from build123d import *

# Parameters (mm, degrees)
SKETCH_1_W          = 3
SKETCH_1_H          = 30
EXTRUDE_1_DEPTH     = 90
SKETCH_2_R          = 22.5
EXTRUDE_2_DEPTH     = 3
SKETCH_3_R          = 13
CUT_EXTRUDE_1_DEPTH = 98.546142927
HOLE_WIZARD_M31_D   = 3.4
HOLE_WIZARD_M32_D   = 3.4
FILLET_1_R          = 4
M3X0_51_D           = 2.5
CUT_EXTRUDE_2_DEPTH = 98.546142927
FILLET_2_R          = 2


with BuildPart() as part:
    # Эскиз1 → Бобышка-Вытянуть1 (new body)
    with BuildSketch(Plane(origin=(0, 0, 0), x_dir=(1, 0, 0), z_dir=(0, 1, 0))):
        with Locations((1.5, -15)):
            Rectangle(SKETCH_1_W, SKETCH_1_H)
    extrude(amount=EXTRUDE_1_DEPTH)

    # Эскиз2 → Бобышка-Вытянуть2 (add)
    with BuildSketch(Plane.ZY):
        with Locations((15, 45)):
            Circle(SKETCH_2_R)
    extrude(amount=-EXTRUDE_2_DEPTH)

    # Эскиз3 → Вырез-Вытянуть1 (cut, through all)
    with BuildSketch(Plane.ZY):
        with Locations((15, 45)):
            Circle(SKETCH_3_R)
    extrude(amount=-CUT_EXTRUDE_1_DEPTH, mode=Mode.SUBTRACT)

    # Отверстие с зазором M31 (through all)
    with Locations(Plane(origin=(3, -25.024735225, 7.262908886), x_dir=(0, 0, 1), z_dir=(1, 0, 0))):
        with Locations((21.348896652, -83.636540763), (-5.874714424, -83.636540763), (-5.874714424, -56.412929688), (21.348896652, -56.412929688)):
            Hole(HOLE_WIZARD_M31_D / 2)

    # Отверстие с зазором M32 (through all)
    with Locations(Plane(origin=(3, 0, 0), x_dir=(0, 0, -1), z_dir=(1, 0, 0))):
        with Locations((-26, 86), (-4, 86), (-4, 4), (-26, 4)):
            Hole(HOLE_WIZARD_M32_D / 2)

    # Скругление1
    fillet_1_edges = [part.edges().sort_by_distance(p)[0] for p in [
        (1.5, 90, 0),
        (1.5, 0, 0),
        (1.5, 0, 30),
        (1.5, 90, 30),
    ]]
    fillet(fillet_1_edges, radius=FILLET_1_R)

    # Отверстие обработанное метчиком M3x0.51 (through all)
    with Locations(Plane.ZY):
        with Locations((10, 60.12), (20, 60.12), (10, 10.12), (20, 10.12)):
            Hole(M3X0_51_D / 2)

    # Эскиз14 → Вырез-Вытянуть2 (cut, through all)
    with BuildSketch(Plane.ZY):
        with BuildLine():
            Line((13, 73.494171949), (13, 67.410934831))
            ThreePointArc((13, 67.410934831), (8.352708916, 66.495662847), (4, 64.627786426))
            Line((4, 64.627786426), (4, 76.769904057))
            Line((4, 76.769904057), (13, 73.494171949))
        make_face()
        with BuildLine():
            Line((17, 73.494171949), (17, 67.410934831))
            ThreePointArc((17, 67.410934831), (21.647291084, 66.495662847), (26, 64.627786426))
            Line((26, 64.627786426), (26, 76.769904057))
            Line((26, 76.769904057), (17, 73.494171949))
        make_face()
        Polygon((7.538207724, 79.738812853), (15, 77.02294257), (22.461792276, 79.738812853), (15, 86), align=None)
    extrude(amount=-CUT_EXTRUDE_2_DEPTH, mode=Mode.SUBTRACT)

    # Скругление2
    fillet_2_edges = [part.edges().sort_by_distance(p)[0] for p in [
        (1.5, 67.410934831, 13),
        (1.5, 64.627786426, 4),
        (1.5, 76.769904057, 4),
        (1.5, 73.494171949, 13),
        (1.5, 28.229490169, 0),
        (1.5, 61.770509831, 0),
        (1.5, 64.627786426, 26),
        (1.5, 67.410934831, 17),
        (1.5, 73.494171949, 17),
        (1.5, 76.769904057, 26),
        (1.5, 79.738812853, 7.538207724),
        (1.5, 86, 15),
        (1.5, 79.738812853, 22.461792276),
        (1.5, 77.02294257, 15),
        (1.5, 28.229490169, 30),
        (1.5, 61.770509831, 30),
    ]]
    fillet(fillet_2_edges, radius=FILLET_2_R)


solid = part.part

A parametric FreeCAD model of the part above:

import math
import FreeCAD as App
import Part
import Sketcher
Q = App.Units.Quantity


def edges_at(feature, points):
    """Names of the edges that pass closest to the given points."""
    edges = feature.Shape.Edges
    near = lambda p: min(range(len(edges)), key=lambda i: edges[i].distToShape(Part.Vertex(*p))[0])
    return sorted({f"Edge{near(p) + 1}" for p in points})


def add_polygon(sketch, points):
    """Adds a closed chain of lines whose ends are joined by coincident constraints."""
    first, n = sketch.GeometryCount, len(points)
    for a, b in zip(points, points[1:] + points[:1]):
        sketch.addGeometry(Part.LineSegment(App.Vector(*a, 0), App.Vector(*b, 0)), False)
    for i in range(n):
        sketch.addConstraint(Sketcher.Constraint("Coincident", first + i, 2, first + (i + 1) % n, 1))

doc = App.newDocument("Part")
body = doc.addObject("PartDesign::Body", "Body")

# Sketch on XZ plane
sketch1 = body.newObject("Sketcher::SketchObject", "Sketch")
sketch1.AttachmentSupport = (doc.getObject("XZ_Plane"), [""])
sketch1.MapMode = "FlatFace"
add_polygon(sketch1, [(0, 0), (0, 30), (3, 30), (3, 0)])  # lines 0-3
sketch1.addConstraint(Sketcher.Constraint("Vertical", 0))
sketch1.addConstraint(Sketcher.Constraint("Horizontal", 1))
sketch1.addConstraint(Sketcher.Constraint("Vertical", 2))
sketch1.addConstraint(Sketcher.Constraint("Horizontal", 3))
sketch1.addConstraint(Sketcher.Constraint("Coincident", 3, 2, -1, 1))
sketch1.addConstraint(Sketcher.Constraint("DistanceX", 1, 1, 1, 2, Q("3 mm")))
sketch1.addConstraint(Sketcher.Constraint("DistanceY", 0, 1, 0, 2, Q("30 mm")))
pad1 = body.newObject("PartDesign::Pad", "Pad")
pad1.Profile = sketch1
pad1.Length = 90
pad1.Reversed = True

# Sketch on YZ plane
sketch2 = body.newObject("Sketcher::SketchObject", "Sketch001")
sketch2.AttachmentSupport = (doc.getObject("YZ_Plane"), [""])
sketch2.MapMode = "FlatFace"
sketch2.addGeometry(Part.Circle(App.Vector(45, 15, 0), App.Vector(0, 0, 1), 22.5), False)
sketch2.addConstraint(Sketcher.Constraint("Diameter", 0, Q("45 mm")))
sketch2.addConstraint(Sketcher.Constraint("DistanceX", -1, 1, 0, 3, Q("45 mm")))
sketch2.addConstraint(Sketcher.Constraint("DistanceY", -1, 1, 0, 3, Q("15 mm")))
pad2 = body.newObject("PartDesign::Pad", "Pad001")
pad2.Profile = sketch2
pad2.Length = 3

# Sketch on YZ plane
sketch3 = body.newObject("Sketcher::SketchObject", "Sketch002")
sketch3.AttachmentSupport = (doc.getObject("YZ_Plane"), [""])
sketch3.MapMode = "FlatFace"
sketch3.addGeometry(Part.Circle(App.Vector(45, 15, 0), App.Vector(0, 0, 1), 13), False)
sketch3.addConstraint(Sketcher.Constraint("Diameter", 0, Q("26 mm")))
sketch3.addConstraint(Sketcher.Constraint("DistanceX", -1, 1, 0, 3, Q("45 mm")))
sketch3.addConstraint(Sketcher.Constraint("DistanceY", -1, 1, 0, 3, Q("15 mm")))
pocket1 = body.newObject("PartDesign::Pocket", "Pocket")
pocket1.Profile = sketch3
pocket1.Type = "ThroughAll"
pocket1.Reversed = True

# Sketch on YZ plane
sketch4 = body.newObject("Sketcher::SketchObject", "Sketch003")
sketch4.AttachmentSupport = (doc.getObject("YZ_Plane"), [""])
sketch4.MapMode = "FlatFace"
sketch4.AttachmentOffset = App.Placement(App.Vector(0, 0, 3), App.Rotation())
sketch4.addGeometry(Part.Circle(App.Vector(58.611806, 28.611806, 0), App.Vector(0, 0, 1), 1.7), False)
sketch4.addGeometry(Part.Circle(App.Vector(58.611806, 1.388194, 0), App.Vector(0, 0, 1), 1.7), False)
sketch4.addGeometry(Part.Circle(App.Vector(31.388194, 1.388194, 0), App.Vector(0, 0, 1), 1.7), False)
sketch4.addGeometry(Part.Circle(App.Vector(31.388194, 28.611806, 0), App.Vector(0, 0, 1), 1.7), False)
sketch4.addConstraint(Sketcher.Constraint("Equal", 0, 1))
sketch4.addConstraint(Sketcher.Constraint("Equal", 1, 2))
sketch4.addConstraint(Sketcher.Constraint("Equal", 2, 3))
sketch4.addConstraint(Sketcher.Constraint("Horizontal", 1, 3, 2, 3))
sketch4.addConstraint(Sketcher.Constraint("Horizontal", 0, 3, 3, 3))
sketch4.addConstraint(Sketcher.Constraint("Vertical", 0, 3, 1, 3))
sketch4.addConstraint(Sketcher.Constraint("Vertical", 2, 3, 3, 3))
sketch4.addConstraint(Sketcher.Constraint("Diameter", 0, Q("3.4 mm")))
sketch4.addConstraint(Sketcher.Constraint("DistanceY", 1, 3, 0, 3, Q("27.223611 mm")))
sketch4.addConstraint(Sketcher.Constraint("DistanceX", 2, 3, 1, 3, Q("27.223611 mm")))
sketch4.addConstraint(Sketcher.Constraint("DistanceX", -1, 1, 0, 3, Q("58.611806 mm")))
sketch4.addConstraint(Sketcher.Constraint("DistanceY", -1, 1, 0, 3, Q("28.611806 mm")))
doc.recompute()
hole = body.newObject("PartDesign::Hole", "Hole")
hole.Profile = sketch4
hole.ThreadType = "None"
hole.Diameter = 3.4
hole.DepthType = "ThroughAll"

# Sketch on YZ plane
sketch5 = body.newObject("Sketcher::SketchObject", "Sketch004")
sketch5.AttachmentSupport = (doc.getObject("YZ_Plane"), [""])
sketch5.MapMode = "FlatFace"
sketch5.AttachmentOffset = App.Placement(App.Vector(0, 0, 3), App.Rotation())
sketch5.addGeometry(Part.Circle(App.Vector(86, 26, 0), App.Vector(0, 0, 1), 1.7), False)
sketch5.addGeometry(Part.Circle(App.Vector(86, 4, 0), App.Vector(0, 0, 1), 1.7), False)
sketch5.addGeometry(Part.Circle(App.Vector(4, 4, 0), App.Vector(0, 0, 1), 1.7), False)
sketch5.addGeometry(Part.Circle(App.Vector(4, 26, 0), App.Vector(0, 0, 1), 1.7), False)
sketch5.addConstraint(Sketcher.Constraint("Equal", 0, 1))
sketch5.addConstraint(Sketcher.Constraint("Equal", 1, 2))
sketch5.addConstraint(Sketcher.Constraint("Equal", 2, 3))
sketch5.addConstraint(Sketcher.Constraint("Horizontal", 1, 3, 2, 3))
sketch5.addConstraint(Sketcher.Constraint("Horizontal", 0, 3, 3, 3))
sketch5.addConstraint(Sketcher.Constraint("Vertical", 0, 3, 1, 3))
sketch5.addConstraint(Sketcher.Constraint("Vertical", 2, 3, 3, 3))
sketch5.addConstraint(Sketcher.Constraint("Diameter", 0, Q("3.4 mm")))
sketch5.addConstraint(Sketcher.Constraint("DistanceX", -1, 1, 0, 3, Q("86 mm")))
sketch5.addConstraint(Sketcher.Constraint("DistanceY", -1, 1, 0, 3, Q("26 mm")))
sketch5.addConstraint(Sketcher.Constraint("DistanceY", -1, 1, 1, 3, Q("4 mm")))
sketch5.addConstraint(Sketcher.Constraint("DistanceX", -1, 1, 2, 3, Q("4 mm")))
doc.recompute()
hole2 = body.newObject("PartDesign::Hole", "Hole001")
hole2.Profile = sketch5
hole2.ThreadType = "None"
hole2.Diameter = 3.4
hole2.DepthType = "ThroughAll"
doc.recompute()

fillet = body.newObject("PartDesign::Fillet", "Fillet")
fillet.Base = (hole2, edges_at(hole2, [
    (1.5, 90, 0),
    (1.5, 0, 0),
    (1.5, 0, 30),
    (1.5, 90, 30),
]))
fillet.Radius = 4

# Sketch on YZ plane
sketch6 = body.newObject("Sketcher::SketchObject", "Sketch005")
sketch6.AttachmentSupport = (doc.getObject("YZ_Plane"), [""])
sketch6.MapMode = "FlatFace"
sketch6.addGeometry(Part.Circle(App.Vector(60.12, 10, 0), App.Vector(0, 0, 1), 1.25), False)
sketch6.addGeometry(Part.Circle(App.Vector(60.12, 20, 0), App.Vector(0, 0, 1), 1.25), False)
sketch6.addGeometry(Part.Circle(App.Vector(10.12, 10, 0), App.Vector(0, 0, 1), 1.25), False)
sketch6.addGeometry(Part.Circle(App.Vector(10.12, 20, 0), App.Vector(0, 0, 1), 1.25), False)
sketch6.addConstraint(Sketcher.Constraint("Equal", 0, 1))
sketch6.addConstraint(Sketcher.Constraint("Equal", 1, 2))
sketch6.addConstraint(Sketcher.Constraint("Equal", 2, 3))
sketch6.addConstraint(Sketcher.Constraint("Horizontal", 0, 3, 2, 3))
sketch6.addConstraint(Sketcher.Constraint("Horizontal", 1, 3, 3, 3))
sketch6.addConstraint(Sketcher.Constraint("Vertical", 0, 3, 1, 3))
sketch6.addConstraint(Sketcher.Constraint("Vertical", 2, 3, 3, 3))
sketch6.addConstraint(Sketcher.Constraint("Diameter", 0, Q("2.5 mm")))
sketch6.addConstraint(Sketcher.Constraint("DistanceY", -1, 1, 0, 3, Q("10 mm")))
sketch6.addConstraint(Sketcher.Constraint("DistanceY", -1, 1, 1, 3, Q("20 mm")))
sketch6.addConstraint(Sketcher.Constraint("DistanceX", 2, 3, 0, 3, Q("50 mm")))
sketch6.addConstraint(Sketcher.Constraint("DistanceX", -1, 1, 0, 3, Q("60.12 mm")))
doc.recompute()
hole3 = body.newObject("PartDesign::Hole", "Hole002")
hole3.Profile = sketch6
hole3.ThreadType = "None"
hole3.Diameter = 2.5
hole3.DepthType = "ThroughAll"
hole3.Reversed = True

# Sketch on YZ plane
sketch7 = body.newObject("Sketcher::SketchObject", "Sketch006")
sketch7.AttachmentSupport = (doc.getObject("YZ_Plane"), [""])
sketch7.MapMode = "FlatFace"
sketch7.addGeometry(Part.LineSegment(App.Vector(67.410935, 13, 0), App.Vector(73.494172, 13, 0)), False)  # 0
sketch7.addGeometry(Part.LineSegment(App.Vector(73.494172, 13, 0), App.Vector(76.769904, 4, 0)), False)  # 1
sketch7.addGeometry(Part.LineSegment(App.Vector(76.769904, 4, 0), App.Vector(64.627786, 4, 0)), False)  # 2
sketch7.addGeometry(Part.ArcOfCircle(Part.Circle(App.Vector(45, 15, 0), App.Vector(0, 0, 1), 22.5), math.radians(-29.267578), math.radians(-5.099689)), False)  # 3
sketch7.addGeometry(Part.LineSegment(App.Vector(73.494172, 17, 0), App.Vector(67.410935, 17, 0)), False)  # 4
sketch7.addGeometry(Part.ArcOfCircle(Part.Circle(App.Vector(45, 15, 0), App.Vector(0, 0, 1), 22.5), math.radians(5.099689), math.radians(29.267578)), False)  # 5
sketch7.addGeometry(Part.LineSegment(App.Vector(64.627786, 26, 0), App.Vector(76.769904, 26, 0)), False)  # 6
sketch7.addGeometry(Part.LineSegment(App.Vector(76.769904, 26, 0), App.Vector(73.494172, 17, 0)), False)  # 7
add_polygon(sketch7, [(79.738813, 7.538208), (77.022943, 15), (79.738813, 22.461792), (86, 15)])  # lines 8-11
sketch7.addConstraint(Sketcher.Constraint("Coincident", 0, 2, 1, 1))
sketch7.addConstraint(Sketcher.Constraint("Coincident", 1, 2, 2, 1))
sketch7.addConstraint(Sketcher.Constraint("Coincident", 2, 2, 3, 1))
sketch7.addConstraint(Sketcher.Constraint("Coincident", 3, 2, 0, 1))
sketch7.addConstraint(Sketcher.Constraint("Coincident", 4, 2, 5, 1))
sketch7.addConstraint(Sketcher.Constraint("Coincident", 5, 2, 6, 1))
sketch7.addConstraint(Sketcher.Constraint("Coincident", 6, 2, 7, 1))
sketch7.addConstraint(Sketcher.Constraint("Coincident", 7, 2, 4, 1))
sketch7.addConstraint(Sketcher.Constraint("Horizontal", 0))
sketch7.addConstraint(Sketcher.Constraint("Horizontal", 2))
sketch7.addConstraint(Sketcher.Constraint("Horizontal", 4))
sketch7.addConstraint(Sketcher.Constraint("Horizontal", 6))
sketch7.addConstraint(Sketcher.Constraint("Coincident", 5, 3, 3, 3))
sketch7.addConstraint(Sketcher.Constraint("Equal", 3, 5))
sketch7.addConstraint(Sketcher.Constraint("Parallel", 1, 8))
sketch7.addConstraint(Sketcher.Constraint("Parallel", 7, 9))
sketch7.addConstraint(Sketcher.Constraint("Horizontal", 5, 3, 8, 2))
sketch7.addConstraint(Sketcher.Constraint("Horizontal", 8, 2, 10, 2))
sketch7.addConstraint(Sketcher.Constraint("Vertical", 3, 2, 4, 2))
sketch7.addConstraint(Sketcher.Constraint("Vertical", 2, 2, 5, 2))
sketch7.addConstraint(Sketcher.Constraint("Vertical", 1, 2, 6, 2))
sketch7.addConstraint(Sketcher.Constraint("Vertical", 0, 2, 7, 2))
sketch7.addConstraint(Sketcher.Constraint("Vertical", 9, 2, 11, 2))
sketch7.addConstraint(Sketcher.Constraint("Radius", 3, Q("22.5 mm")))
sketch7.addConstraint(Sketcher.Constraint("Angle", 1, Q("-70 deg")))
sketch7.addConstraint(Sketcher.Constraint("Angle", 10, Q("-50 deg")))
sketch7.addConstraint(Sketcher.Constraint("DistanceX", -1, 1, 3, 3, Q("45 mm")))
sketch7.addConstraint(Sketcher.Constraint("DistanceY", -1, 1, 3, 3, Q("15 mm")))
sketch7.addConstraint(Sketcher.Constraint("DistanceY", -1, 1, 0, 2, Q("13 mm")))
sketch7.addConstraint(Sketcher.Constraint("DistanceY", -1, 1, 1, 2, Q("4 mm")))
sketch7.addConstraint(Sketcher.Constraint("DistanceX", -1, 1, 10, 2, Q("86 mm")))
sketch7.addConstraint(Sketcher.Constraint("Distance", 10, Q("9.740678 mm")))
sketch7.addConstraint(Sketcher.Constraint("DistanceX", 0, 1, 0, 2, Q("6.083237 mm")))
pocket2 = body.newObject("PartDesign::Pocket", "Pocket001")
pocket2.Profile = sketch7
pocket2.Type = "ThroughAll"
pocket2.Reversed = True
doc.recompute()

fillet2 = body.newObject("PartDesign::Fillet", "Fillet001")
fillet2.Base = (pocket2, edges_at(pocket2, [
    (1.5, 67.411, 13),
    (1.5, 64.628, 4),
    (1.5, 76.77, 4),
    (1.5, 73.494, 13),
    (1.5, 28.229, 0),
    (1.5, 61.771, 0),
    (1.5, 64.628, 26),
    (1.5, 67.411, 17),
    (1.5, 73.494, 17),
    (1.5, 76.77, 26),
    (1.5, 79.739, 7.538),
    (1.5, 86, 15),
    (1.5, 79.739, 22.462),
    (1.5, 77.023, 15),
    (1.5, 28.229, 30),
    (1.5, 61.771, 30),
]))
fillet2.Radius = 2

doc.recompute()
